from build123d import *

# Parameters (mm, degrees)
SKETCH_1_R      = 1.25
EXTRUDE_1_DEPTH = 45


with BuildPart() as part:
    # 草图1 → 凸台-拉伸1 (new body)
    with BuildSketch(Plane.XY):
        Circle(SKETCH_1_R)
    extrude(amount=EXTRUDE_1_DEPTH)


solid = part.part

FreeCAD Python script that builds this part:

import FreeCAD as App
import Part
import Sketcher
from FreeCAD import Vector

doc = App.newDocument("Part")
params = doc.addObject("Spreadsheet::Sheet", "Params")
for row, (alias, value) in enumerate([
    ("sketch1_diameter", "2.5 mm"),
    ("pad1_length", "45 mm"),
], start=1):
    params.set(f"A{row}", alias)
    params.set(f"B{row}", "=" + value)
    params.setAlias(f"B{row}", alias)

body = doc.addObject("PartDesign::Body", "Body")

sketch1 = body.newObject("Sketcher::SketchObject", "Sketch")
sketch1.AttachmentSupport = (doc.getObject("XY_Plane"), [""])
sketch1.MapMode = "FlatFace"
sketch1.addGeometry(Part.Circle(Vector(0, 0, 0), Vector(0, 0, 1), 1.2), False)
sketch1.addConstraint([
    Sketcher.Constraint("Coincident", 0, 3, -1, 1),
    Sketcher.Constraint("Diameter", 0, 2.5),
])
sketch1.setExpression("Constraints[1]", "Params.sketch1_diameter")
pad1 = body.newObject("PartDesign::Pad", "Pad")
pad1.Profile = sketch1
pad1.setExpression("Length", "Params.pad1_length")

doc.recompute()
